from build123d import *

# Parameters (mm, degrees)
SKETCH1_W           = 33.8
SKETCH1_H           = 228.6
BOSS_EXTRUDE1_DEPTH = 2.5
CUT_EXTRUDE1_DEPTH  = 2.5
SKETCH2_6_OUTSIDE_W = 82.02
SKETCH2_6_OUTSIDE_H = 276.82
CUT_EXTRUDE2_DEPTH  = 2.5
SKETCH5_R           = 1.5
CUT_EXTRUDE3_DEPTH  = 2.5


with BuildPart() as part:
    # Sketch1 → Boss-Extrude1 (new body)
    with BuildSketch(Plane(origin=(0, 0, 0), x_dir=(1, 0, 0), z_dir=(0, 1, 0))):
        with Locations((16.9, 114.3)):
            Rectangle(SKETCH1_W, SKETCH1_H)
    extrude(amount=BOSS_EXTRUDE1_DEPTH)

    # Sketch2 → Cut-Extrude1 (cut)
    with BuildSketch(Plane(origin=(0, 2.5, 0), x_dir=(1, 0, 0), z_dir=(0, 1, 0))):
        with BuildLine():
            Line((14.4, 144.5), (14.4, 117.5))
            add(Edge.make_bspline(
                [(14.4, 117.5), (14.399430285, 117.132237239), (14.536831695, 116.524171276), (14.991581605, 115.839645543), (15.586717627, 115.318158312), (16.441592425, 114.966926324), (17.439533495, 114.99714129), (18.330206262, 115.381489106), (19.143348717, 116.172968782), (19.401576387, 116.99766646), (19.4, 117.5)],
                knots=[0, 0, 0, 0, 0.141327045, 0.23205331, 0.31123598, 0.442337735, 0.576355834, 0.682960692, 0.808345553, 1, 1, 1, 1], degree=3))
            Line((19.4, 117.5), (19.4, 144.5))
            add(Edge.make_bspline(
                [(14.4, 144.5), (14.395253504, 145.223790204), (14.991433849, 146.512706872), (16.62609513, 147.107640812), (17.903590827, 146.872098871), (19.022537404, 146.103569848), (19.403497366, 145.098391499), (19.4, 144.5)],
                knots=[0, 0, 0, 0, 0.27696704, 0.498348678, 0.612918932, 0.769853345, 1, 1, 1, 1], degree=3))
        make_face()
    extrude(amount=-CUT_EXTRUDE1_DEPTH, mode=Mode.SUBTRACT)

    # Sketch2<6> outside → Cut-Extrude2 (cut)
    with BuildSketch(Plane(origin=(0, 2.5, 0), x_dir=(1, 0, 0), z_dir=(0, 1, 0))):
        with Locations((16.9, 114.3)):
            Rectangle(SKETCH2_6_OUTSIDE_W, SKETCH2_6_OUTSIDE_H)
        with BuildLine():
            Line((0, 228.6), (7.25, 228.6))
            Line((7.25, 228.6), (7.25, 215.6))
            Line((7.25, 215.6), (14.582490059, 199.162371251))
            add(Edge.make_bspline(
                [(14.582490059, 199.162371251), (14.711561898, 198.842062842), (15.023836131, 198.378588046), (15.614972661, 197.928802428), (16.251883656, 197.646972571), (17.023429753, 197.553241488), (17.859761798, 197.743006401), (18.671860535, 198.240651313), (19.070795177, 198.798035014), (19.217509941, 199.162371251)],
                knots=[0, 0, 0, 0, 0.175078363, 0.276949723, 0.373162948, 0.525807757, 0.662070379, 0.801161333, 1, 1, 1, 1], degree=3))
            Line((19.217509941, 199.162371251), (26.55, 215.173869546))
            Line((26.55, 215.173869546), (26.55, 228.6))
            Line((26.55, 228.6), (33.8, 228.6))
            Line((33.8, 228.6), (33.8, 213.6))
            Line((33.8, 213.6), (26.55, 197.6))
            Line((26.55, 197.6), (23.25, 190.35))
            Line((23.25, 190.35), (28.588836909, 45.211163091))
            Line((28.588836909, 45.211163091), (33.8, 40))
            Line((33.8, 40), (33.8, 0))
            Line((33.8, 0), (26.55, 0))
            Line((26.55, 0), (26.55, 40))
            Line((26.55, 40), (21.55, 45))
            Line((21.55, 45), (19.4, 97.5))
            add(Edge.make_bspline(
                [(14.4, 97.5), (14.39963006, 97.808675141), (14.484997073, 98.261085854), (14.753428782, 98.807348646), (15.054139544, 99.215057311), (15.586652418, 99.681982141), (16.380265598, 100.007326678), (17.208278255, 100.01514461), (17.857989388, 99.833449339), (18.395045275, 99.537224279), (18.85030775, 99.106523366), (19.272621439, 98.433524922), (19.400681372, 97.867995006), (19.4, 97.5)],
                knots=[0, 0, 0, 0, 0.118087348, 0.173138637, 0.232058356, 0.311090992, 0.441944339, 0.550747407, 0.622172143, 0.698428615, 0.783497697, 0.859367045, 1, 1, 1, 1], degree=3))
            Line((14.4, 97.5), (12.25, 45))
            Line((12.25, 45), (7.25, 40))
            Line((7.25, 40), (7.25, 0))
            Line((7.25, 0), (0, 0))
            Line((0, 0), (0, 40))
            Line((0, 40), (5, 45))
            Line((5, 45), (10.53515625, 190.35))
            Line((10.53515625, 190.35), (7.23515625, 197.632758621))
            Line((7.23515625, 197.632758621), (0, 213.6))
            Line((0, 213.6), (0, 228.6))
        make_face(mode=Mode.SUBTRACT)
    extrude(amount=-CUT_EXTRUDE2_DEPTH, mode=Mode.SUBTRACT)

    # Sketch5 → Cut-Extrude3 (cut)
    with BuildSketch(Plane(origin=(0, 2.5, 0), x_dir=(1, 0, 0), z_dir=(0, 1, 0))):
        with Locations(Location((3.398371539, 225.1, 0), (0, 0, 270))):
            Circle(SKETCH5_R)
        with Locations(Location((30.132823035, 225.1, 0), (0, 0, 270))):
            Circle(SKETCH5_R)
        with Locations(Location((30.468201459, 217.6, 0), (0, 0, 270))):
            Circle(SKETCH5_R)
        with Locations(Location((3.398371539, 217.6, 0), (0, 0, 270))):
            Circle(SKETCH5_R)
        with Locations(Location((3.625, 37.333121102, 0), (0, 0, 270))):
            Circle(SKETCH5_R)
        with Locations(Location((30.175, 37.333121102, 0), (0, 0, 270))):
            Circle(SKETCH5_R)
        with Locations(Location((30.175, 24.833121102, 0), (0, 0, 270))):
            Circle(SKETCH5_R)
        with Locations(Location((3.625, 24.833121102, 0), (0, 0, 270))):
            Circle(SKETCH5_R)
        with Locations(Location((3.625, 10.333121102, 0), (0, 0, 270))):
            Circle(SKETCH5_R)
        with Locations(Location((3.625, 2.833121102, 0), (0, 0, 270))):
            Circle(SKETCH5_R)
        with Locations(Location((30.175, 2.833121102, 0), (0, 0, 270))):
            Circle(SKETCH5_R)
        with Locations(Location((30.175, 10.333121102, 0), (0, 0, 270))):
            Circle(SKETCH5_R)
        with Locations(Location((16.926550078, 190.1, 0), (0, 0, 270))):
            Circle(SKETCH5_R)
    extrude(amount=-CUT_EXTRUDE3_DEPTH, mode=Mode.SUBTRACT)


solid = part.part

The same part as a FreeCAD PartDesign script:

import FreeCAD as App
import Part
import Sketcher
from FreeCAD import Vector

doc = App.newDocument("Part")
body = doc.addObject("PartDesign::Body", "Body")

sketch1 = body.newObject("Sketcher::SketchObject", "Sketch")
sketch1.AttachmentSupport = (doc.getObject("XZ_Plane"), [""])
sketch1.MapMode = "FlatFace"
sketch1.addGeometry([
    Part.LineSegment(Vector(0, -229, 0), Vector(0, 0, 0)),
    Part.LineSegment(Vector(0, 0, 0), Vector(34, 0, 0)),
    Part.LineSegment(Vector(34, 0, 0), Vector(34, -229, 0)),
    Part.LineSegment(Vector(34, -229, 0), Vector(0, -229, 0)),
], False)
sketch1.addConstraint([
    Sketcher.Constraint("Coincident", 0, 2, 1, 1),
    Sketcher.Constraint("Coincident", 1, 2, 2, 1),
    Sketcher.Constraint("Coincident", 2, 2, 3, 1),
    Sketcher.Constraint("Coincident", 3, 2, 0, 1),
    Sketcher.Constraint("Vertical", 0),
    Sketcher.Constraint("Horizontal", 1),
    Sketcher.Constraint("Vertical", 2),
    Sketcher.Constraint("Horizontal", 3),
    Sketcher.Constraint("Coincident", 0, 2, -1, 1),
    Sketcher.Constraint("DistanceX", 1, 1, 1, 2, 33.8),
    Sketcher.Constraint("DistanceY", 0, 1, 0, 2, 228.6),
])
pad1 = body.newObject("PartDesign::Pad", "Pad")
pad1.Profile = sketch1
pad1.Length = 2.5
pad1.Reversed = True

sketch2 = body.newObject("Sketcher::SketchObject", "Sketch001")
sketch2.AttachmentSupport = (doc.getObject("XZ_Plane"), [""])
sketch2.MapMode = "FlatFace"
sketch2.AttachmentOffset = App.Placement(Vector(0, 0, -2.5), App.Rotation())
sketch2.addGeometry([
    Part.LineSegment(Vector(14.4, -144.5, 0), Vector(14.4, -117.5, 0)),
    Part.BSplineCurve([Vector(14.4, -117.5, 0), Vector(14.39943, -117.132237, 0), Vector(14.536832, -116.524171, 0), Vector(14.991582, -115.839646, 0), Vector(15.586718, -115.318158, 0), Vector(16.441592, -114.966926, 0), Vector(17.439533, -114.997141, 0), Vector(18.330206, -115.381489, 0), Vector(19.143349, -116.172969, 0), Vector(19.401576, -116.997666, 0), Vector(19.4, -117.5, 0)], [4, 1, 1, 1, 1, 1, 1, 1, 4], [0, 0.141327045, 0.23205331, 0.31123598, 0.442337735, 0.576355834, 0.682960692, 0.808345553, 1], False, 3, [1, 1, 1, 1, 1, 1, 1, 1, 1, 1, 1], False),
    Part.LineSegment(Vector(19.4, -117.5, 0), Vector(19.4, -144.5, 0)),
    Part.BSplineCurve([Vector(14.4, -144.5, 0), Vector(14.395254, -145.22379, 0), Vector(14.991434, -146.512707, 0), Vector(16.626095, -147.107641, 0), Vector(17.903591, -146.872099, 0), Vector(19.022537, -146.10357, 0), Vector(19.403497, -145.098391, 0), Vector(19.4, -144.5, 0)], [4, 1, 1, 1, 1, 4], [0, 0.27696704, 0.498348678, 0.612918932, 0.769853345, 1], False, 3, [1, 1, 1, 1, 1, 1, 1, 1], False),
], False)
sketch2.addConstraint([
    Sketcher.Constraint("Block", 1),
    Sketcher.Constraint("Block", 3),
    Sketcher.Constraint("Coincident", 0, 2, 1, 1),
    Sketcher.Constraint("Coincident", 1, 2, 2, 1),
    Sketcher.Constraint("Coincident", 2, 2, 3, 2),
    Sketcher.Constraint("Coincident", 3, 1, 0, 1),
])
pocket1 = body.newObject("PartDesign::Pocket", "Pocket")
pocket1.Profile = sketch2
pocket1.Length = 2.5
pocket1.Reversed = True

sketch3 = body.newObject("Sketcher::SketchObject", "Sketch002")
sketch3.AttachmentSupport = (doc.getObject("XZ_Plane"), [""])
sketch3.MapMode = "FlatFace"
sketch3.AttachmentOffset = App.Placement(Vector(0, 0, -2.5), App.Rotation())
sketch3.addGeometry([
    Part.LineSegment(Vector(-24.11, -252.71, 0), Vector(-24.11, 24.11, 0)),
    Part.LineSegment(Vector(-24.11, 24.11, 0), Vector(57.91, 24.11, 0)),
    Part.LineSegment(Vector(57.91, 24.11, 0), Vector(57.91, -252.71, 0)),
    Part.LineSegment(Vector(57.91, -252.71, 0), Vector(-24.11, -252.71, 0)),
    Part.LineSegment(Vector(0, -213.6, 0), Vector(0, -228.6, 0)),
    Part.LineSegment(Vector(0, -228.6, 0), Vector(7.25, -228.6, 0)),
    Part.LineSegment(Vector(7.25, -228.6, 0), Vector(7.25, -215.6, 0)),
    Part.LineSegment(Vector(7.25, -215.6, 0), Vector(14.58249, -199.162371, 0)),
    Part.BSplineCurve([Vector(14.58249, -199.162371, 0), Vector(14.711562, -198.842063, 0), Vector(15.023836, -198.378588, 0), Vector(15.614973, -197.928802, 0), Vector(16.251884, -197.646973, 0), Vector(17.02343, -197.553241, 0), Vector(17.859762, -197.743006, 0), Vector(18.671861, -198.240651, 0), Vector(19.070795, -198.798035, 0), Vector(19.21751, -199.162371, 0)], [4, 1, 1, 1, 1, 1, 1, 4], [0, 0.175078363, 0.276949723, 0.373162948, 0.525807757, 0.662070379, 0.801161333, 1], False, 3, [1, 1, 1, 1, 1, 1, 1, 1, 1, 1], False),
    Part.LineSegment(Vector(19.21751, -199.162371, 0), Vector(26.55, -215.17387, 0)),
    Part.LineSegment(Vector(26.55, -215.17387, 0), Vector(26.55, -228.6, 0)),
    Part.LineSegment(Vector(26.55, -228.6, 0), Vector(33.8, -228.6, 0)),
    Part.LineSegment(Vector(33.8, -228.6, 0), Vector(33.8, -213.6, 0)),
    Part.LineSegment(Vector(33.8, -213.6, 0), Vector(26.55, -197.6, 0)),
    Part.LineSegment(Vector(26.55, -197.6, 0), Vector(23.25, -190.35, 0)),
    Part.LineSegment(Vector(23.25, -190.35, 0), Vector(28.588837, -45.211163, 0)),
    Part.LineSegment(Vector(28.588837, -45.211163, 0), Vector(33.8, -40, 0)),
    Part.LineSegment(Vector(33.8, -40, 0), Vector(33.8, 0, 0)),
    Part.LineSegment(Vector(33.8, 0, 0), Vector(26.55, 0, 0)),
    Part.LineSegment(Vector(26.55, 0, 0), Vector(26.55, -40, 0)),
    Part.LineSegment(Vector(26.55, -40, 0), Vector(21.55, -45, 0)),
    Part.LineSegment(Vector(21.55, -45, 0), Vector(19.4, -97.5, 0)),
    Part.BSplineCurve([Vector(14.4, -97.5, 0), Vector(14.39963, -97.808675, 0), Vector(14.484997, -98.261086, 0), Vector(14.753429, -98.807349, 0), Vector(15.05414, -99.215057, 0), Vector(15.586652, -99.681982, 0), Vector(16.380266, -100.007327, 0), Vector(17.208278, -100.015145, 0), Vector(17.857989, -99.833449, 0), Vector(18.395045, -99.537224, 0), Vector(18.850308, -99.106523, 0), Vector(19.272621, -98.433525, 0), Vector(19.400681, -97.867995, 0), Vector(19.4, -97.5, 0)], [4, 1, 1, 1, 1, 1, 1, 1, 1, 1, 1, 4], [0, 0.118087348, 0.173138637, 0.232058356, 0.311090992, 0.441944339, 0.550747407, 0.622172143, 0.698428615, 0.783497697, 0.859367045, 1], False, 3, [1, 1, 1, 1, 1, 1, 1, 1, 1, 1, 1, 1, 1, 1], False),
    Part.LineSegment(Vector(14.4, -97.5, 0), Vector(12.25, -45, 0)),
    Part.LineSegment(Vector(12.25, -45, 0), Vector(7.25, -40, 0)),
    Part.LineSegment(Vector(7.25, -40, 0), Vector(7.25, 0, 0)),
    Part.LineSegment(Vector(7.25, 0, 0), Vector(0, 0, 0)),
    Part.LineSegment(Vector(0, 0, 0), Vector(0, -40, 0)),
    Part.LineSegment(Vector(0, -40, 0), Vector(5, -45, 0)),
    Part.LineSegment(Vector(5, -45, 0), Vector(10.535156, -190.35, 0)),
    Part.LineSegment(Vector(10.535156, -190.35, 0), Vector(7.235156, -197.632759, 0)),
    Part.LineSegment(Vector(7.235156, -197.632759, 0), Vector(0, -213.6, 0)),
], False)
sketch3.addConstraint([
    Sketcher.Constraint("Block", 8),
    Sketcher.Constraint("Block", 22),
    Sketcher.Constraint("Coincident", 0, 2, 1, 1),
    Sketcher.Constraint("Coincident", 1, 2, 2, 1),
    Sketcher.Constraint("Coincident", 2, 2, 3, 1),
    Sketcher.Constraint("Coincident", 3, 2, 0, 1),
    Sketcher.Constraint("Coincident", 4, 2, 5, 1),
    Sketcher.Constraint("Coincident", 5, 2, 6, 1),
    Sketcher.Constraint("Coincident", 6, 2, 7, 1),
    Sketcher.Constraint("Coincident", 7, 2, 8, 1),
    Sketcher.Constraint("Coincident", 8, 2, 9, 1),
    Sketcher.Constraint("Coincident", 9, 2, 10, 1),
    Sketcher.Constraint("Coincident", 10, 2, 11, 1),
    Sketcher.Constraint("Coincident", 11, 2, 12, 1),
    Sketcher.Constraint("Coincident", 12, 2, 13, 1),
    Sketcher.Constraint("Coincident", 13, 2, 14, 1),
    Sketcher.Constraint("Coincident", 14, 2, 15, 1),
    Sketcher.Constraint("Coincident", 15, 2, 16, 1),
    Sketcher.Constraint("Coincident", 16, 2, 17, 1),
    Sketcher.Constraint("Coincident", 17, 2, 18, 1),
    Sketcher.Constraint("Coincident", 18, 2, 19, 1),
    Sketcher.Constraint("Coincident", 19, 2, 20, 1),
    Sketcher.Constraint("Coincident", 20, 2, 21, 1),
    Sketcher.Constraint("Coincident", 21, 2, 22, 2),
    Sketcher.Constraint("Coincident", 22, 1, 23, 1),
    Sketcher.Constraint("Coincident", 23, 2, 24, 1),
    Sketcher.Constraint("Coincident", 24, 2, 25, 1),
    Sketcher.Constraint("Coincident", 25, 2, 26, 1),
    Sketcher.Constraint("Coincident", 26, 2, 27, 1),
    Sketcher.Constraint("Coincident", 27, 2, 28, 1),
    Sketcher.Constraint("Coincident", 28, 2, 29, 1),
    Sketcher.Constraint("Coincident", 29, 2, 30, 1),
    Sketcher.Constraint("Coincident", 30, 2, 31, 1),
    Sketcher.Constraint("Coincident", 31, 2, 4, 1),
    Sketcher.Constraint("Vertical", 0),
    Sketcher.Constraint("Horizontal", 1),
    Sketcher.Constraint("Vertical", 2),
    Sketcher.Constraint("Horizontal", 3),
    Sketcher.Constraint("Vertical", 4),
    Sketcher.Constraint("Horizontal", 5),
    Sketcher.Constraint("Vertical", 6),
    Sketcher.Constraint("Vertical", 10),
    Sketcher.Constraint("Horizontal", 11),
    Sketcher.Constraint("Vertical", 12),
    Sketcher.Constraint("Vertical", 17),
    Sketcher.Constraint("Horizontal", 18),
    Sketcher.Constraint("Vertical", 19),
    Sketcher.Constraint("Vertical", 25),
    Sketcher.Constraint("Horizontal", 26),
    Sketcher.Constraint("Vertical", 27),
    Sketcher.Constraint("Coincident", 26, 2, -1, 1),
    Sketcher.Constraint("PointOnObject", 4, 2, -2),
    Sketcher.Constraint("PointOnObject", 17, 2, -1),
    Sketcher.Constraint("DistanceY", 4, 2, 4, 1, 15.0),
    Sketcher.Constraint("DistanceY", 6, 1, 6, 2, 13.0),
    Sketcher.Constraint("DistanceY", 12, 1, 12, 2, 15.0),
    Sketcher.Constraint("DistanceY", 17, 1, 17, 2, 40.0),
    Sketcher.Constraint("DistanceY", 19, 2, 19, 1, 40.0),
    Sketcher.Constraint("DistanceY", 25, 1, 25, 2, 40.0),
    Sketcher.Constraint("DistanceY", 27, 2, 27, 1, 40.0),
    Sketcher.Constraint("DistanceY", 20, 2, -1, 1, 45.0),
    Sketcher.Constraint("DistanceY", 23, 2, -1, 1, 45.0),
    Sketcher.Constraint("DistanceX", -1, 1, 28, 2, 5.0),
    Sketcher.Constraint("DistanceY", 28, 2, -1, 1, 45.0),
    Sketcher.Constraint("DistanceY", 10, 2, 6, 2, 13.0),
    Sketcher.Constraint("DistanceY", 12, 2, 13, 2, 16.0),
    Sketcher.Constraint("DistanceX", 6, 2, 14, 2, 16.0),
    Sketcher.Constraint("DistanceX", 20, 2, 19, 2, 5.0),
    Sketcher.Constraint("DistanceX", 24, 2, 23, 2, 5.0),
    Sketcher.Constraint("DistanceX", 1, 1, 1, 2, 82.02),
    Sketcher.Constraint("DistanceX", 5, 1, 5, 2, 7.25),
    Sketcher.Constraint("DistanceX", 11, 1, 11, 2, 7.25),
    Sketcher.Constraint("DistanceX", 18, 2, 18, 1, 7.25),
    Sketcher.Constraint("DistanceX", 26, 2, 26, 1, 7.25),
    Sketcher.Constraint("DistanceY", 0, 1, 0, 2, 276.82),
    Sketcher.Constraint("DistanceY", 4, 2, -1, 1, 228.6),
    Sketcher.Constraint("DistanceX", -1, 1, 11, 2, 33.8),
    Sketcher.Constraint("DistanceX", -1, 1, 16, 2, 33.8),
    Sketcher.Constraint("DistanceX", 6, 2, 13, 2, 19.3),
    Sketcher.Constraint("DistanceX", 30, 2, 29, 2, 3.3),
    Sketcher.Constraint("DistanceX", 0, 2, -1, 1, 24.11),
    Sketcher.Constraint("DistanceY", -1, 1, 0, 2, 24.11),
    Sketcher.Constraint("DistanceY", 14, 2, -1, 1, 190.35),
    Sketcher.Constraint("DistanceY", 29, 2, -1, 1, 190.35),
    Sketcher.Constraint("DistanceY", 10, 2, 10, 1, 13.42613),
    Sketcher.Constraint("DistanceY", 30, 2, -1, 1, 197.632759),
    Sketcher.Constraint("DistanceY", 7, 2, 15, 2, 153.951208),
    Sketcher.Constraint("Distance", 15, 145.236997),
    Sketcher.Constraint("Distance", 29, 145.455356),
])
pocket2 = body.newObject("PartDesign::Pocket", "Pocket001")
pocket2.Profile = sketch3
pocket2.Length = 2.5
pocket2.Reversed = True

sketch4 = body.newObject("Sketcher::SketchObject", "Sketch003")
sketch4.AttachmentSupport = (doc.getObject("XZ_Plane"), [""])
sketch4.MapMode = "FlatFace"
sketch4.AttachmentOffset = App.Placement(Vector(0, 0, -2.5), App.Rotation())
sketch4.addGeometry([
    Part.Circle(Vector(3.4, -225.1, 0), Vector(0, 0, 1), 1.5),
    Part.Circle(Vector(30.1, -225.1, 0), Vector(0, 0, 1), 1.5),
    Part.Circle(Vector(30.5, -217.6, 0), Vector(0, 0, 1), 1.5),
    Part.Circle(Vector(3.4, -217.6, 0), Vector(0, 0, 1), 1.5),
    Part.Circle(Vector(3.6, -37.3, 0), Vector(0, 0, 1), 1.5),
    Part.Circle(Vector(30.2, -37.3, 0), Vector(0, 0, 1), 1.5),
    Part.Circle(Vector(30.2, -24.8, 0), Vector(0, 0, 1), 1.5),
    Part.Circle(Vector(3.6, -24.8, 0), Vector(0, 0, 1), 1.5),
    Part.Circle(Vector(3.6, -10.3, 0), Vector(0, 0, 1), 1.5),
    Part.Circle(Vector(3.6, -2.8, 0), Vector(0, 0, 1), 1.5),
    Part.Circle(Vector(30.2, -2.8, 0), Vector(0, 0, 1), 1.5),
    Part.Circle(Vector(30.2, -10.3, 0), Vector(0, 0, 1), 1.5),
    Part.Circle(Vector(16.9, -190.1, 0), Vector(0, 0, 1), 1.5),
], False)
sketch4.addConstraint([
    Sketcher.Constraint("Equal", 0, 1),
    Sketcher.Constraint("Equal", 1, 2),
    Sketcher.Constraint("Equal", 2, 3),
    Sketcher.Constraint("Equal", 3, 4),
    Sketcher.Constraint("Equal", 4, 5),
    Sketcher.Constraint("Equal", 5, 6),
    Sketcher.Constraint("Equal", 6, 7),
    Sketcher.Constraint("Equal", 7, 8),
    Sketcher.Constraint("Equal", 8, 9),
    Sketcher.Constraint("Equal", 9, 10),
    Sketcher.Constraint("Equal", 10, 11),
    Sketcher.Constraint("Equal", 11, 12),
    Sketcher.Constraint("Horizontal", 0, 3, 1, 3),
    Sketcher.Constraint("Horizontal", 2, 3, 3, 3),
    Sketcher.Constraint("Horizontal", 4, 3, 5, 3),
    Sketcher.Constraint("Horizontal", 6, 3, 7, 3),
    Sketcher.Constraint("Horizontal", 9, 3, 10, 3),
    Sketcher.Constraint("Horizontal", 8, 3, 11, 3),
    Sketcher.Constraint("Vertical", 0, 3, 3, 3),
    Sketcher.Constraint("Vertical", 5, 3, 6, 3),
    Sketcher.Constraint("Vertical", 4, 3, 7, 3),
    Sketcher.Constraint("Vertical", 7, 3, 8, 3),
    Sketcher.Constraint("Vertical", 8, 3, 9, 3),
    Sketcher.Constraint("Vertical", 6, 3, 10, 3),
    Sketcher.Constraint("Vertical", 10, 3, 11, 3),
    Sketcher.Constraint("Diameter", 0, 3.0),
    Sketcher.Constraint("DistanceY", 4, 3, 8, 3, 27.0),
    Sketcher.Constraint("DistanceY", 7, 3, 9, 3, 22.0),
    Sketcher.Constraint("DistanceY", 1, 3, 12, 3, 35.0),
    Sketcher.Constraint("DistanceY", 0, 3, -1, 1, 225.1),
    Sketcher.Constraint("DistanceY", 2, 3, -1, 1, 217.6),
    Sketcher.Constraint("DistanceY", 5, 3, 6, 3, 12.5),
    Sketcher.Constraint("DistanceX", 4, 3, 5, 3, 26.55),
    Sketcher.Constraint("DistanceX", -1, 1, 4, 3, 3.625),
    Sketcher.Constraint("DistanceX", -1, 1, 2, 3, 30.468201),
    Sketcher.Constraint("DistanceX", -1, 1, 0, 3, 3.398372),
    Sketcher.Constraint("DistanceY", 4, 3, -1, 1, 37.333121),
    Sketcher.Constraint("DistanceX", -1, 1, 12, 3, 16.92655),
    Sketcher.Constraint("DistanceX", 0, 3, 1, 3, 26.734451),
])
pocket3 = body.newObject("PartDesign::Pocket", "Pocket002")
pocket3.Profile = sketch4
pocket3.Length = 2.5
pocket3.Reversed = True

doc.recompute()
